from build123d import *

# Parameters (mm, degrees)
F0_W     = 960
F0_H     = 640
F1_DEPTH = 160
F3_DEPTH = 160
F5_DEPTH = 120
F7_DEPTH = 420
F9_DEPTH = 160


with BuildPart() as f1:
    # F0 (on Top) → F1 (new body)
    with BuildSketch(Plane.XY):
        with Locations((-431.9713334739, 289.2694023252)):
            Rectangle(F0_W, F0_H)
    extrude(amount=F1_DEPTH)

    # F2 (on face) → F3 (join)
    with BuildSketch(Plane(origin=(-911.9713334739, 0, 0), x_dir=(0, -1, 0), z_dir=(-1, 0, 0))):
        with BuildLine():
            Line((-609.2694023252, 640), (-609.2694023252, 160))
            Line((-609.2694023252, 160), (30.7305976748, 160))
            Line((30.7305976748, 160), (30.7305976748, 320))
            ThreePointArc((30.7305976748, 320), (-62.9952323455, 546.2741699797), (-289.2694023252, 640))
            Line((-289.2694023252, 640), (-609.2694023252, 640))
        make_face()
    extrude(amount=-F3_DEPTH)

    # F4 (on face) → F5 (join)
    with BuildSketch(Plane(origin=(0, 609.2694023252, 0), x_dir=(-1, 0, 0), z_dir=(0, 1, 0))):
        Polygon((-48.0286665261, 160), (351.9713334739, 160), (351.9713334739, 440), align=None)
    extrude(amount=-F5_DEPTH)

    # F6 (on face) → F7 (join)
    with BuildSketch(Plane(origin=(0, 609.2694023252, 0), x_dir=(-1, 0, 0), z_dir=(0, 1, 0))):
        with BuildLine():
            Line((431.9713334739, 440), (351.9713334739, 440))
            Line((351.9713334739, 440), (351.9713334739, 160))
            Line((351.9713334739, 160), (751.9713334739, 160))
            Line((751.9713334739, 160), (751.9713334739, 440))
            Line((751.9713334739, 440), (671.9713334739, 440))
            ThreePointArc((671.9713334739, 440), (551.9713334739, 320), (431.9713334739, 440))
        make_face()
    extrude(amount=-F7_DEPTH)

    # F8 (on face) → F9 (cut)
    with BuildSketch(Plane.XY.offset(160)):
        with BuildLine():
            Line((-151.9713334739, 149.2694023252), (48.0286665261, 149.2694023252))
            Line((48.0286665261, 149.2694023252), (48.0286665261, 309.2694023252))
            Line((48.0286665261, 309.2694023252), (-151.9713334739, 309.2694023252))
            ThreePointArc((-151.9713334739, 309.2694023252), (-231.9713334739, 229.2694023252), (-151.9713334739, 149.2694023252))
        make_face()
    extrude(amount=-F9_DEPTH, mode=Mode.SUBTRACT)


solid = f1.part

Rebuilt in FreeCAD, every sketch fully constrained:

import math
import FreeCAD as App
import Part
import Sketcher
from FreeCAD import Vector


def add_polygon(sketch, points):
    """Adds a closed chain of lines whose ends are joined by coincident constraints."""
    first, n = sketch.GeometryCount, len(points)
    for a, b in zip(points, points[1:] + points[:1]):
        sketch.addGeometry(Part.LineSegment(App.Vector(*a, 0), App.Vector(*b, 0)), False)
    for i in range(n):
        sketch.addConstraint(Sketcher.Constraint("Coincident", first + i, 2, first + (i + 1) % n, 1))

doc = App.newDocument("Part")
body = doc.addObject("PartDesign::Body", "Body")

sketch1 = body.newObject("Sketcher::SketchObject", "Sketch")
sketch1.AttachmentSupport = (doc.getObject("XY_Plane"), [""])
sketch1.MapMode = "FlatFace"
add_polygon(sketch1, [(-912, 609), (-912, -31), (48, -31), (48, 609)])
sketch1.addConstraint([
    Sketcher.Constraint("Vertical", 0),
    Sketcher.Constraint("Horizontal", 1),
    Sketcher.Constraint("Vertical", 2),
    Sketcher.Constraint("Horizontal", 3),
    Sketcher.Constraint("DistanceX", 1, 1, 1, 2, 960.0),
    Sketcher.Constraint("DistanceY", 0, 2, 0, 1, 640.0),
    Sketcher.Constraint("DistanceX", 0, 2, -1, 1, 911.971333),
    Sketcher.Constraint("DistanceY", 0, 2, -1, 1, 30.730598),
])
pad1 = body.newObject("PartDesign::Pad", "Pad")
pad1.Profile = sketch1
pad1.Length = 160

sketch2 = body.newObject("Sketcher::SketchObject", "Sketch001")
sketch2.AttachmentSupport = (doc.getObject("YZ_Plane"), [""])
sketch2.MapMode = "FlatFace"
sketch2.AttachmentOffset = App.Placement(Vector(0, 0, -911.971333), App.Rotation())
sketch2.addGeometry([
    Part.LineSegment(Vector(609, 640, 0), Vector(609, 160, 0)),
    Part.LineSegment(Vector(609, 160, 0), Vector(-31, 160, 0)),
    Part.LineSegment(Vector(-31, 160, 0), Vector(-31, 320, 0)),
    Part.ArcOfCircle(Part.Circle(Vector(289, 320, 0), Vector(0, 0, 1), 320), math.radians(90), math.radians(180)),
    Part.LineSegment(Vector(289, 640, 0), Vector(609, 640, 0)),
], False)
sketch2.addConstraint([
    Sketcher.Constraint("Coincident", 0, 2, 1, 1),
    Sketcher.Constraint("Coincident", 1, 2, 2, 1),
    Sketcher.Constraint("Tangent", 2, 2, 3, 2),
    Sketcher.Constraint("Tangent", 3, 1, 4, 1),
    Sketcher.Constraint("Coincident", 4, 2, 0, 1),
    Sketcher.Constraint("Vertical", 0),
    Sketcher.Constraint("Horizontal", 1),
    Sketcher.Constraint("Vertical", 2),
    Sketcher.Constraint("Horizontal", 4),
    Sketcher.Constraint("Radius", 3, 320.0),
    Sketcher.Constraint("DistanceX", 1, 2, 1, 1, 640.0),
    Sketcher.Constraint("DistanceY", 0, 2, 0, 1, 480.0),
    Sketcher.Constraint("DistanceY", -1, 1, 3, 3, 320.0),
    Sketcher.Constraint("DistanceX", -1, 1, 3, 3, 289.269402),
])
pad2 = body.newObject("PartDesign::Pad", "Pad001")
pad2.Profile = sketch2
pad2.Length = 160

sketch3 = body.newObject("Sketcher::SketchObject", "Sketch002")
sketch3.AttachmentSupport = (doc.getObject("XZ_Plane"), [""])
sketch3.MapMode = "FlatFace"
sketch3.AttachmentOffset = App.Placement(Vector(0, 0, -609.269402), App.Rotation())
add_polygon(sketch3, [(48, 160), (-352, 160), (-352, 440)])
sketch3.addConstraint([
    Sketcher.Constraint("Horizontal", 0),
    Sketcher.Constraint("Vertical", 1),
    Sketcher.Constraint("DistanceX", 0, 2, 0, 1, 400.0),
    Sketcher.Constraint("DistanceY", 1, 1, 1, 2, 280.0),
    Sketcher.Constraint("DistanceY", -1, 1, 0, 2, 160.0),
    Sketcher.Constraint("DistanceX", 0, 2, -1, 1, 351.971333),
])
pad3 = body.newObject("PartDesign::Pad", "Pad002")
pad3.Profile = sketch3
pad3.Length = 120

sketch4 = body.newObject("Sketcher::SketchObject", "Sketch003")
sketch4.AttachmentSupport = (doc.getObject("XZ_Plane"), [""])
sketch4.MapMode = "FlatFace"
sketch4.AttachmentOffset = App.Placement(Vector(0, 0, -609.269402), App.Rotation())
sketch4.addGeometry([
    Part.LineSegment(Vector(-432, 440, 0), Vector(-352, 440, 0)),
    Part.LineSegment(Vector(-352, 440, 0), Vector(-352, 160, 0)),
    Part.LineSegment(Vector(-352, 160, 0), Vector(-752, 160, 0)),
    Part.LineSegment(Vector(-752, 160, 0), Vector(-752, 440, 0)),
    Part.LineSegment(Vector(-752, 440, 0), Vector(-672, 440, 0)),
    Part.ArcOfCircle(Part.Circle(Vector(-552, 440, 0), Vector(0, 0, 1), 120), math.radians(180), math.radians(360)),
], False)
sketch4.addConstraint([
    Sketcher.Constraint("Coincident", 0, 2, 1, 1),
    Sketcher.Constraint("Coincident", 1, 2, 2, 1),
    Sketcher.Constraint("Coincident", 2, 2, 3, 1),
    Sketcher.Constraint("Coincident", 3, 2, 4, 1),
    Sketcher.Constraint("Coincident", 4, 2, 5, 1),
    Sketcher.Constraint("Coincident", 5, 2, 0, 1),
    Sketcher.Constraint("Horizontal", 0),
    Sketcher.Constraint("Vertical", 1),
    Sketcher.Constraint("Horizontal", 2),
    Sketcher.Constraint("Vertical", 3),
    Sketcher.Constraint("Horizontal", 4),
    Sketcher.Constraint("Horizontal", 5, 3, 0, 2),
    Sketcher.Constraint("Horizontal", 0, 2, 3, 2),
    Sketcher.Constraint("Equal", 0, 4),
    Sketcher.Constraint("Radius", 5, 120.0),
    Sketcher.Constraint("DistanceX", 0, 1, 0, 2, 80.0),
    Sketcher.Constraint("DistanceY", 1, 2, 1, 1, 280.0),
    Sketcher.Constraint("DistanceY", -1, 1, 5, 3, 440.0),
    Sketcher.Constraint("DistanceX", 5, 3, -1, 1, 551.971333),
])
pad4 = body.newObject("PartDesign::Pad", "Pad003")
pad4.Profile = sketch4
pad4.Length = 420

sketch5 = body.newObject("Sketcher::SketchObject", "Sketch004")
sketch5.AttachmentSupport = (doc.getObject("XY_Plane"), [""])
sketch5.MapMode = "FlatFace"
sketch5.AttachmentOffset = App.Placement(Vector(0, 0, 160), App.Rotation())
sketch5.addGeometry([
    Part.LineSegment(Vector(-152, 149, 0), Vector(48, 149, 0)),
    Part.LineSegment(Vector(48, 149, 0), Vector(48, 309, 0)),
    Part.LineSegment(Vector(48, 309, 0), Vector(-152, 309, 0)),
    Part.ArcOfCircle(Part.Circle(Vector(-152, 229, 0), Vector(0, 0, 1), 80), math.radians(90), math.radians(270)),
], False)
sketch5.addConstraint([
    Sketcher.Constraint("Coincident", 0, 2, 1, 1),
    Sketcher.Constraint("Coincident", 1, 2, 2, 1),
    Sketcher.Constraint("Tangent", 2, 2, 3, 1),
    Sketcher.Constraint("Tangent", 3, 2, 0, 1),
    Sketcher.Constraint("Horizontal", 0),
    Sketcher.Constraint("Vertical", 1),
    Sketcher.Constraint("Horizontal", 2),
    Sketcher.Constraint("Radius", 3, 80.0),
    Sketcher.Constraint("DistanceX", 0, 1, 0, 2, 200.0),
    Sketcher.Constraint("DistanceX", 3, 3, -1, 1, 151.971333),
    Sketcher.Constraint("DistanceY", -1, 1, 3, 3, 229.269402),
])
pocket1 = body.newObject("PartDesign::Pocket", "Pocket")
pocket1.Profile = sketch5
pocket1.Length = 160

doc.recompute()
